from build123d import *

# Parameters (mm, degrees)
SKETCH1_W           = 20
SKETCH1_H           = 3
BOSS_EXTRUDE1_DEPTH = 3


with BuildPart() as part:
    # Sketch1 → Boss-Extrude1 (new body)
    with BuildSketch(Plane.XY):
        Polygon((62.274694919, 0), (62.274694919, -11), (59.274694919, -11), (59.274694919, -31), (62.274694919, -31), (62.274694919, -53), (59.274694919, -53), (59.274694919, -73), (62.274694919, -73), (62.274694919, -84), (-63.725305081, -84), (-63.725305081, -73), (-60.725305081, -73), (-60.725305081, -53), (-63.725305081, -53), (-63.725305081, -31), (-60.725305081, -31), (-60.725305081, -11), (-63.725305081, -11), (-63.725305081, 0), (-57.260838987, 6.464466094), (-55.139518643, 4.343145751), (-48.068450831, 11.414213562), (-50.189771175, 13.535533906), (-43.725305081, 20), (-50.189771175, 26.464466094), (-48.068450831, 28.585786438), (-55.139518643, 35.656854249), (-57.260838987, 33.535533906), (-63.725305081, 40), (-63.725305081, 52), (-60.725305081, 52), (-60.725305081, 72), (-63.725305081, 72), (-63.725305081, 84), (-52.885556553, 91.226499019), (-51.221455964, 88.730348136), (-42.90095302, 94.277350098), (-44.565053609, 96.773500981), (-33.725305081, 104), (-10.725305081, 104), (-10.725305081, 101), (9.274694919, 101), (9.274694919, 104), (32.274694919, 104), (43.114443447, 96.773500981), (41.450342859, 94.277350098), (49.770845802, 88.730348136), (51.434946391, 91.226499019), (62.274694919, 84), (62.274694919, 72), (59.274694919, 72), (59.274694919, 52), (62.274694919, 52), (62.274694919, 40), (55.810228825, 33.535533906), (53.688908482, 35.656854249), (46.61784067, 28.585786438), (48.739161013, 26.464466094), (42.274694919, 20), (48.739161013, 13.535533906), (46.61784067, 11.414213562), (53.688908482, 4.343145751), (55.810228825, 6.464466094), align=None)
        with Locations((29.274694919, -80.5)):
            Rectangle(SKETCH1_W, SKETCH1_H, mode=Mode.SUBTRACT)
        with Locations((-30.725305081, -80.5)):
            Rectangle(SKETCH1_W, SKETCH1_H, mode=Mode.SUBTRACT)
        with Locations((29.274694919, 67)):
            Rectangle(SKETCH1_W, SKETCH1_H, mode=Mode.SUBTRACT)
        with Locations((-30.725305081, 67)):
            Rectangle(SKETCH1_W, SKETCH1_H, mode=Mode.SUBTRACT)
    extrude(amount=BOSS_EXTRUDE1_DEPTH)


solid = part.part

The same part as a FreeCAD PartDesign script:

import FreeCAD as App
import Part
import Sketcher
Q = App.Units.Quantity

doc = App.newDocument("Part")
body = doc.addObject("PartDesign::Body", "Body")

# Sketch on XY plane
sketch1 = body.newObject("Sketcher::SketchObject", "Sketch")
sketch1.AttachmentSupport = (doc.getObject("XY_Plane"), [""])
sketch1.MapMode = "FlatFace"
sketch1.addGeometry([
    Part.LineSegment(App.Vector(62.3, -11, 0), App.Vector(62.3, 0, 0)),  # 0
    Part.LineSegment(App.Vector(62.3, 0, 0), App.Vector(55.8, 6.5, 0)),  # 1
    Part.LineSegment(App.Vector(55.8, 6.5, 0), App.Vector(53.7, 4.3, 0)),  # 2
    Part.LineSegment(App.Vector(53.7, 4.3, 0), App.Vector(46.6, 11.4, 0)),  # 3
    Part.LineSegment(App.Vector(46.6, 11.4, 0), App.Vector(48.7, 13.5, 0)),  # 4
    Part.LineSegment(App.Vector(48.7, 13.5, 0), App.Vector(42.3, 20, 0)),  # 5
    Part.LineSegment(App.Vector(42.3, 20, 0), App.Vector(48.7, 26.5, 0)),  # 6
    Part.LineSegment(App.Vector(48.7, 26.5, 0), App.Vector(46.6, 28.6, 0)),  # 7
    Part.LineSegment(App.Vector(46.6, 28.6, 0), App.Vector(53.7, 35.7, 0)),  # 8
    Part.LineSegment(App.Vector(53.7, 35.7, 0), App.Vector(55.8, 33.5, 0)),  # 9
    Part.LineSegment(App.Vector(55.8, 33.5, 0), App.Vector(62.3, 40, 0)),  # 10
    Part.LineSegment(App.Vector(62.3, 40, 0), App.Vector(62.3, 52, 0)),  # 11
    Part.LineSegment(App.Vector(62.3, 52, 0), App.Vector(59.3, 52, 0)),  # 12
    Part.LineSegment(App.Vector(59.3, 52, 0), App.Vector(59.3, 72, 0)),  # 13
    Part.LineSegment(App.Vector(59.3, 72, 0), App.Vector(62.3, 72, 0)),  # 14
    Part.LineSegment(App.Vector(62.3, 72, 0), App.Vector(62.3, 84, 0)),  # 15
    Part.LineSegment(App.Vector(62.3, 84, 0), App.Vector(51.4, 91.2, 0)),  # 16
    Part.LineSegment(App.Vector(51.4, 91.2, 0), App.Vector(49.8, 88.7, 0)),  # 17
    Part.LineSegment(App.Vector(49.8, 88.7, 0), App.Vector(41.5, 94.3, 0)),  # 18
    Part.LineSegment(App.Vector(41.5, 94.3, 0), App.Vector(43.1, 96.8, 0)),  # 19
    Part.LineSegment(App.Vector(43.1, 96.8, 0), App.Vector(32.3, 104, 0)),  # 20
    Part.LineSegment(App.Vector(32.3, 104, 0), App.Vector(9.3, 104, 0)),  # 21
    Part.LineSegment(App.Vector(9.3, 104, 0), App.Vector(9.3, 101, 0)),  # 22
    Part.LineSegment(App.Vector(9.3, 101, 0), App.Vector(-10.7, 101, 0)),  # 23
    Part.LineSegment(App.Vector(-10.7, 101, 0), App.Vector(-10.7, 104, 0)),  # 24
    Part.LineSegment(App.Vector(-10.7, 104, 0), App.Vector(-33.7, 104, 0)),  # 25
    Part.LineSegment(App.Vector(-33.7, 104, 0), App.Vector(-44.6, 96.8, 0)),  # 26
    Part.LineSegment(App.Vector(-44.6, 96.8, 0), App.Vector(-42.9, 94.3, 0)),  # 27
    Part.LineSegment(App.Vector(-42.9, 94.3, 0), App.Vector(-51.2, 88.7, 0)),  # 28
    Part.LineSegment(App.Vector(-51.2, 88.7, 0), App.Vector(-52.9, 91.2, 0)),  # 29
    Part.LineSegment(App.Vector(-52.9, 91.2, 0), App.Vector(-63.7, 84, 0)),  # 30
    Part.LineSegment(App.Vector(-63.7, 84, 0), App.Vector(-63.7, 72, 0)),  # 31
    Part.LineSegment(App.Vector(-63.7, 72, 0), App.Vector(-60.7, 72, 0)),  # 32
    Part.LineSegment(App.Vector(-60.7, 72, 0), App.Vector(-60.7, 52, 0)),  # 33
    Part.LineSegment(App.Vector(-60.7, 52, 0), App.Vector(-63.7, 52, 0)),  # 34
    Part.LineSegment(App.Vector(-63.7, 52, 0), App.Vector(-63.7, 40, 0)),  # 35
    Part.LineSegment(App.Vector(-63.7, 40, 0), App.Vector(-57.3, 33.5, 0)),  # 36
    Part.LineSegment(App.Vector(-57.3, 33.5, 0), App.Vector(-55.1, 35.7, 0)),  # 37
    Part.LineSegment(App.Vector(-55.1, 35.7, 0), App.Vector(-48.1, 28.6, 0)),  # 38
    Part.LineSegment(App.Vector(-48.1, 28.6, 0), App.Vector(-50.2, 26.5, 0)),  # 39
    Part.LineSegment(App.Vector(-50.2, 26.5, 0), App.Vector(-43.7, 20, 0)),  # 40
    Part.LineSegment(App.Vector(-43.7, 20, 0), App.Vector(-50.2, 13.5, 0)),  # 41
    Part.LineSegment(App.Vector(-50.2, 13.5, 0), App.Vector(-48.1, 11.4, 0)),  # 42
    Part.LineSegment(App.Vector(-48.1, 11.4, 0), App.Vector(-55.1, 4.3, 0)),  # 43
    Part.LineSegment(App.Vector(-55.1, 4.3, 0), App.Vector(-57.3, 6.5, 0)),  # 44
    Part.LineSegment(App.Vector(-57.3, 6.5, 0), App.Vector(-63.7, 0, 0)),  # 45
    Part.LineSegment(App.Vector(-63.7, 0, 0), App.Vector(-63.7, -11, 0)),  # 46
    Part.LineSegment(App.Vector(-63.7, -11, 0), App.Vector(-60.7, -11, 0)),  # 47
    Part.LineSegment(App.Vector(-60.7, -11, 0), App.Vector(-60.7, -31, 0)),  # 48
    Part.LineSegment(App.Vector(-60.7, -31, 0), App.Vector(-63.7, -31, 0)),  # 49
    Part.LineSegment(App.Vector(-63.7, -31, 0), App.Vector(-63.7, -53, 0)),  # 50
    Part.LineSegment(App.Vector(-63.7, -53, 0), App.Vector(-60.7, -53, 0)),  # 51
    Part.LineSegment(App.Vector(-60.7, -53, 0), App.Vector(-60.7, -73, 0)),  # 52
    Part.LineSegment(App.Vector(-60.7, -73, 0), App.Vector(-63.7, -73, 0)),  # 53
    Part.LineSegment(App.Vector(-63.7, -73, 0), App.Vector(-63.7, -84, 0)),  # 54
    Part.LineSegment(App.Vector(-63.7, -84, 0), App.Vector(62.3, -84, 0)),  # 55
    Part.LineSegment(App.Vector(62.3, -84, 0), App.Vector(62.3, -73, 0)),  # 56
    Part.LineSegment(App.Vector(62.3, -73, 0), App.Vector(59.3, -73, 0)),  # 57
    Part.LineSegment(App.Vector(59.3, -73, 0), App.Vector(59.3, -53, 0)),  # 58
    Part.LineSegment(App.Vector(59.3, -53, 0), App.Vector(62.3, -53, 0)),  # 59
    Part.LineSegment(App.Vector(62.3, -53, 0), App.Vector(62.3, -31, 0)),  # 60
    Part.LineSegment(App.Vector(62.3, -31, 0), App.Vector(59.3, -31, 0)),  # 61
    Part.LineSegment(App.Vector(59.3, -31, 0), App.Vector(59.3, -11, 0)),  # 62
    Part.LineSegment(App.Vector(59.3, -11, 0), App.Vector(62.3, -11, 0)),  # 63
    Part.LineSegment(App.Vector(19.3, -82, 0), App.Vector(19.3, -79, 0)),  # 64
    Part.LineSegment(App.Vector(19.3, -79, 0), App.Vector(39.3, -79, 0)),  # 65
    Part.LineSegment(App.Vector(39.3, -79, 0), App.Vector(39.3, -82, 0)),  # 66
    Part.LineSegment(App.Vector(39.3, -82, 0), App.Vector(19.3, -82, 0)),  # 67
    Part.LineSegment(App.Vector(-40.7, -82, 0), App.Vector(-40.7, -79, 0)),  # 68
    Part.LineSegment(App.Vector(-40.7, -79, 0), App.Vector(-20.7, -79, 0)),  # 69
    Part.LineSegment(App.Vector(-20.7, -79, 0), App.Vector(-20.7, -82, 0)),  # 70
    Part.LineSegment(App.Vector(-20.7, -82, 0), App.Vector(-40.7, -82, 0)),  # 71
    Part.LineSegment(App.Vector(19.3, 65.5, 0), App.Vector(19.3, 68.5, 0)),  # 72
    Part.LineSegment(App.Vector(19.3, 68.5, 0), App.Vector(39.3, 68.5, 0)),  # 73
    Part.LineSegment(App.Vector(39.3, 68.5, 0), App.Vector(39.3, 65.5, 0)),  # 74
    Part.LineSegment(App.Vector(39.3, 65.5, 0), App.Vector(19.3, 65.5, 0)),  # 75
    Part.LineSegment(App.Vector(-40.7, 65.5, 0), App.Vector(-40.7, 68.5, 0)),  # 76
    Part.LineSegment(App.Vector(-40.7, 68.5, 0), App.Vector(-20.7, 68.5, 0)),  # 77
    Part.LineSegment(App.Vector(-20.7, 68.5, 0), App.Vector(-20.7, 65.5, 0)),  # 78
    Part.LineSegment(App.Vector(-20.7, 65.5, 0), App.Vector(-40.7, 65.5, 0)),  # 79
], False)
sketch1.addConstraint([
    Sketcher.Constraint("Coincident", 0, 2, 1, 1),
    Sketcher.Constraint("Coincident", 1, 2, 2, 1),
    Sketcher.Constraint("Coincident", 2, 2, 3, 1),
    Sketcher.Constraint("Coincident", 3, 2, 4, 1),
    Sketcher.Constraint("Coincident", 4, 2, 5, 1),
    Sketcher.Constraint("Coincident", 5, 2, 6, 1),
    Sketcher.Constraint("Coincident", 6, 2, 7, 1),
    Sketcher.Constraint("Coincident", 7, 2, 8, 1),
    Sketcher.Constraint("Coincident", 8, 2, 9, 1),
    Sketcher.Constraint("Coincident", 9, 2, 10, 1),
    Sketcher.Constraint("Coincident", 10, 2, 11, 1),
    Sketcher.Constraint("Coincident", 11, 2, 12, 1),
    Sketcher.Constraint("Coincident", 12, 2, 13, 1),
    Sketcher.Constraint("Coincident", 13, 2, 14, 1),
    Sketcher.Constraint("Coincident", 14, 2, 15, 1),
    Sketcher.Constraint("Coincident", 15, 2, 16, 1),
    Sketcher.Constraint("Coincident", 16, 2, 17, 1),
    Sketcher.Constraint("Coincident", 17, 2, 18, 1),
    Sketcher.Constraint("Coincident", 18, 2, 19, 1),
    Sketcher.Constraint("Coincident", 19, 2, 20, 1),
    Sketcher.Constraint("Coincident", 20, 2, 21, 1),
    Sketcher.Constraint("Coincident", 21, 2, 22, 1),
    Sketcher.Constraint("Coincident", 22, 2, 23, 1),
    Sketcher.Constraint("Coincident", 23, 2, 24, 1),
    Sketcher.Constraint("Coincident", 24, 2, 25, 1),
    Sketcher.Constraint("Coincident", 25, 2, 26, 1),
    Sketcher.Constraint("Coincident", 26, 2, 27, 1),
    Sketcher.Constraint("Coincident", 27, 2, 28, 1),
    Sketcher.Constraint("Coincident", 28, 2, 29, 1),
    Sketcher.Constraint("Coincident", 29, 2, 30, 1),
    Sketcher.Constraint("Coincident", 30, 2, 31, 1),
    Sketcher.Constraint("Coincident", 31, 2, 32, 1),
    Sketcher.Constraint("Coincident", 32, 2, 33, 1),
    Sketcher.Constraint("Coincident", 33, 2, 34, 1),
    Sketcher.Constraint("Coincident", 34, 2, 35, 1),
    Sketcher.Constraint("Coincident", 35, 2, 36, 1),
    Sketcher.Constraint("Coincident", 36, 2, 37, 1),
    Sketcher.Constraint("Coincident", 37, 2, 38, 1),
    Sketcher.Constraint("Coincident", 38, 2, 39, 1),
    Sketcher.Constraint("Coincident", 39, 2, 40, 1),
    Sketcher.Constraint("Coincident", 40, 2, 41, 1),
    Sketcher.Constraint("Coincident", 41, 2, 42, 1),
    Sketcher.Constraint("Coincident", 42, 2, 43, 1),
    Sketcher.Constraint("Coincident", 43, 2, 44, 1),
    Sketcher.Constraint("Coincident", 44, 2, 45, 1),
    Sketcher.Constraint("Coincident", 45, 2, 46, 1),
    Sketcher.Constraint("Coincident", 46, 2, 47, 1),
    Sketcher.Constraint("Coincident", 47, 2, 48, 1),
    Sketcher.Constraint("Coincident", 48, 2, 49, 1),
    Sketcher.Constraint("Coincident", 49, 2, 50, 1),
    Sketcher.Constraint("Coincident", 50, 2, 51, 1),
    Sketcher.Constraint("Coincident", 51, 2, 52, 1),
    Sketcher.Constraint("Coincident", 52, 2, 53, 1),
    Sketcher.Constraint("Coincident", 53, 2, 54, 1),
    Sketcher.Constraint("Coincident", 54, 2, 55, 1),
    Sketcher.Constraint("Coincident", 55, 2, 56, 1),
    Sketcher.Constraint("Coincident", 56, 2, 57, 1),
    Sketcher.Constraint("Coincident", 57, 2, 58, 1),
    Sketcher.Constraint("Coincident", 58, 2, 59, 1),
    Sketcher.Constraint("Coincident", 59, 2, 60, 1),
    Sketcher.Constraint("Coincident", 60, 2, 61, 1),
    Sketcher.Constraint("Coincident", 61, 2, 62, 1),
    Sketcher.Constraint("Coincident", 62, 2, 63, 1),
    Sketcher.Constraint("Coincident", 63, 2, 0, 1),
    Sketcher.Constraint("Coincident", 64, 2, 65, 1),
    Sketcher.Constraint("Coincident", 65, 2, 66, 1),
    Sketcher.Constraint("Coincident", 66, 2, 67, 1),
    Sketcher.Constraint("Coincident", 67, 2, 64, 1),
    Sketcher.Constraint("Coincident", 68, 2, 69, 1),
    Sketcher.Constraint("Coincident", 69, 2, 70, 1),
    Sketcher.Constraint("Coincident", 70, 2, 71, 1),
    Sketcher.Constraint("Coincident", 71, 2, 68, 1),
    Sketcher.Constraint("Coincident", 72, 2, 73, 1),
    Sketcher.Constraint("Coincident", 73, 2, 74, 1),
    Sketcher.Constraint("Coincident", 74, 2, 75, 1),
    Sketcher.Constraint("Coincident", 75, 2, 72, 1),
    Sketcher.Constraint("Coincident", 76, 2, 77, 1),
    Sketcher.Constraint("Coincident", 77, 2, 78, 1),
    Sketcher.Constraint("Coincident", 78, 2, 79, 1),
    Sketcher.Constraint("Coincident", 79, 2, 76, 1),
    Sketcher.Constraint("Vertical", 0),
    Sketcher.Constraint("Vertical", 11),
    Sketcher.Constraint("Horizontal", 12),
    Sketcher.Constraint("Vertical", 13),
    Sketcher.Constraint("Horizontal", 14),
    Sketcher.Constraint("Vertical", 15),
    Sketcher.Constraint("Horizontal", 21),
    Sketcher.Constraint("Vertical", 22),
    Sketcher.Constraint("Horizontal", 23),
    Sketcher.Constraint("Vertical", 24),
    Sketcher.Constraint("Horizontal", 25),
    Sketcher.Constraint("Vertical", 31),
    Sketcher.Constraint("Horizontal", 32),
    Sketcher.Constraint("Vertical", 33),
    Sketcher.Constraint("Horizontal", 34),
    Sketcher.Constraint("Vertical", 35),
    Sketcher.Constraint("Vertical", 46),
    Sketcher.Constraint("Horizontal", 47),
    Sketcher.Constraint("Vertical", 48),
    Sketcher.Constraint("Horizontal", 49),
    Sketcher.Constraint("Vertical", 50),
    Sketcher.Constraint("Horizontal", 51),
    Sketcher.Constraint("Vertical", 52),
    Sketcher.Constraint("Horizontal", 53),
    Sketcher.Constraint("Vertical", 54),
    Sketcher.Constraint("Horizontal", 55),
    Sketcher.Constraint("Vertical", 56),
    Sketcher.Constraint("Horizontal", 57),
    Sketcher.Constraint("Vertical", 58),
    Sketcher.Constraint("Horizontal", 59),
    Sketcher.Constraint("Vertical", 60),
    Sketcher.Constraint("Horizontal", 61),
    Sketcher.Constraint("Vertical", 62),
    Sketcher.Constraint("Horizontal", 63),
    Sketcher.Constraint("Vertical", 64),
    Sketcher.Constraint("Horizontal", 65),
    Sketcher.Constraint("Vertical", 66),
    Sketcher.Constraint("Horizontal", 67),
    Sketcher.Constraint("Vertical", 68),
    Sketcher.Constraint("Horizontal", 69),
    Sketcher.Constraint("Vertical", 70),
    Sketcher.Constraint("Horizontal", 71),
    Sketcher.Constraint("Vertical", 72),
    Sketcher.Constraint("Horizontal", 73),
    Sketcher.Constraint("Vertical", 74),
    Sketcher.Constraint("Horizontal", 75),
    Sketcher.Constraint("Vertical", 76),
    Sketcher.Constraint("Horizontal", 77),
    Sketcher.Constraint("Vertical", 78),
    Sketcher.Constraint("Horizontal", 79),
    Sketcher.Constraint("Symmetric", 30, 2, 54, 2, -1),
    Sketcher.Constraint("Symmetric", 15, 2, 55, 2, -1),
    Sketcher.Constraint("PointOnObject", 0, 2, -1),
    Sketcher.Constraint("PointOnObject", 45, 2, -1),
    Sketcher.Constraint("Perpendicular", 1, 2),
    Sketcher.Constraint("Perpendicular", 2, 3),
    Sketcher.Constraint("Perpendicular", 3, 4),
    Sketcher.Constraint("Perpendicular", 4, 5),
    Sketcher.Constraint("Perpendicular", 5, 6),
    Sketcher.Constraint("Perpendicular", 6, 7),
    Sketcher.Constraint("Perpendicular", 7, 8),
    Sketcher.Constraint("Perpendicular", 8, 9),
    Sketcher.Constraint("Perpendicular", 9, 10),
    Sketcher.Constraint("Perpendicular", 16, 17),
    Sketcher.Constraint("Perpendicular", 17, 18),
    Sketcher.Constraint("Perpendicular", 18, 19),
    Sketcher.Constraint("Perpendicular", 19, 20),
    Sketcher.Constraint("Perpendicular", 26, 27),
    Sketcher.Constraint("Perpendicular", 27, 28),
    Sketcher.Constraint("Perpendicular", 28, 29),
    Sketcher.Constraint("Perpendicular", 29, 30),
    Sketcher.Constraint("Perpendicular", 10, 36),
    Sketcher.Constraint("Perpendicular", 36, 37),
    Sketcher.Constraint("Perpendicular", 37, 38),
    Sketcher.Constraint("Perpendicular", 38, 39),
    Sketcher.Constraint("Perpendicular", 39, 40),
    Sketcher.Constraint("Perpendicular", 40, 41),
    Sketcher.Constraint("Perpendicular", 41, 42),
    Sketcher.Constraint("Perpendicular", 42, 43),
    Sketcher.Constraint("Perpendicular", 43, 44),
    Sketcher.Constraint("Perpendicular", 44, 45),
    Sketcher.Constraint("Horizontal", 21, 2, 24, 2),
    Sketcher.Constraint("Horizontal", 19, 2, 26, 2),
    Sketcher.Constraint("Horizontal", 18, 2, 27, 2),
    Sketcher.Constraint("Horizontal", 17, 2, 28, 2),
    Sketcher.Constraint("Horizontal", 16, 2, 29, 2),
    Sketcher.Constraint("Horizontal", 14, 2, 31, 2),
    Sketcher.Constraint("Horizontal", 12, 2, 33, 2),
    Sketcher.Constraint("Horizontal", 10, 2, 35, 2),
    Sketcher.Constraint("Horizontal", 9, 2, 36, 2),
    Sketcher.Constraint("Horizontal", 8, 2, 37, 2),
    Sketcher.Constraint("Horizontal", 7, 2, 38, 2),
    Sketcher.Constraint("Horizontal", 6, 2, 39, 2),
    Sketcher.Constraint("Horizontal", 5, 2, 40, 2),
    Sketcher.Constraint("Horizontal", 4, 2, 41, 2),
    Sketcher.Constraint("Horizontal", 3, 2, 42, 2),
    Sketcher.Constraint("Horizontal", 2, 2, 43, 2),
    Sketcher.Constraint("Horizontal", 1, 2, 44, 2),
    Sketcher.Constraint("Horizontal", 53, 2, 56, 2),
    Sketcher.Constraint("Horizontal", 51, 2, 58, 2),
    Sketcher.Constraint("Horizontal", 49, 2, 60, 2),
    Sketcher.Constraint("Horizontal", 47, 2, 62, 2),
    Sketcher.Constraint("Horizontal", 65, 2, 68, 2),
    Sketcher.Constraint("Horizontal", 67, 2, 70, 2),
    Sketcher.Constraint("Horizontal", 73, 2, 76, 2),
    Sketcher.Constraint("Horizontal", 75, 2, 78, 2),
    Sketcher.Constraint("Vertical", 4, 2, 6, 2),
    Sketcher.Constraint("Vertical", 3, 2, 7, 2),
    Sketcher.Constraint("Vertical", 2, 2, 8, 2),
    Sketcher.Constraint("Vertical", 1, 2, 9, 2),
    Sketcher.Constraint("Vertical", 0, 2, 10, 2),
    Sketcher.Constraint("Vertical", 11, 2, 14, 2),
    Sketcher.Constraint("Vertical", 31, 2, 34, 2),
    Sketcher.Constraint("Vertical", 39, 2, 41, 2),
    Sketcher.Constraint("Vertical", 33, 2, 47, 2),
    Sketcher.Constraint("Vertical", 46, 2, 49, 2),
    Sketcher.Constraint("Vertical", 48, 2, 51, 2),
    Sketcher.Constraint("Vertical", 13, 2, 57, 2),
    Sketcher.Constraint("Vertical", 56, 2, 59, 2),
    Sketcher.Constraint("Vertical", 58, 2, 61, 2),
    Sketcher.Constraint("Vertical", 67, 2, 72, 2),
    Sketcher.Constraint("Vertical", 66, 2, 73, 2),
    Sketcher.Constraint("Vertical", 71, 2, 76, 2),
    Sketcher.Constraint("Vertical", 70, 2, 77, 2),
    Sketcher.Constraint("Equal", 21, 25),
    Sketcher.Constraint("Equal", 14, 32),
    Sketcher.Constraint("Equal", 23, 65),
    Sketcher.Constraint("Equal", 67, 69),
    Sketcher.Constraint("Equal", 79, 13),
    Sketcher.Constraint("Equal", 11, 15),
    Sketcher.Constraint("Equal", 63, 22),
    Sketcher.Constraint("Equal", 33, 48),
    Sketcher.Constraint("Equal", 48, 52),
    Sketcher.Constraint("Equal", 46, 54),
    Sketcher.Constraint("Equal", 24, 64),
    Sketcher.Constraint("Equal", 70, 72),
    Sketcher.Constraint("Equal", 2, 4),
    Sketcher.Constraint("Equal", 1, 5),
    Sketcher.Constraint("Equal", 9, 17),
    Sketcher.Constraint("Equal", 8, 18),
    Sketcher.Constraint("Equal", 17, 19),
    Sketcher.Constraint("Equal", 16, 20),
    Sketcher.Constraint("Equal", 20, 26),
    Sketcher.Constraint("DistanceX", 12, 2, 12, 1, Q("3 mm")),
    Sketcher.Constraint("DistanceX", 21, 2, 21, 1, Q("23 mm")),
    Sketcher.Constraint("DistanceX", 23, 2, 23, 1, Q("20 mm")),
    Sketcher.Constraint("DistanceX", 55, 1, 55, 2, Q("126 mm")),
    Sketcher.Constraint("DistanceY", 0, 1, 0, 2, Q("11 mm")),
    Sketcher.Constraint("DistanceY", 11, 1, 11, 2, Q("12 mm")),
    Sketcher.Constraint("DistanceY", 50, 2, 50, 1, Q("22 mm")),
    Sketcher.Constraint("Distance", 2, Q("3 mm")),
    Sketcher.Constraint("Distance", 3, Q("10 mm")),
    Sketcher.Constraint("DistanceY", -1, 1, 20, 2, Q("104 mm")),
    Sketcher.Constraint("DistanceY", 64, 2, -1, 1, Q("79 mm")),
    Sketcher.Constraint("DistanceY", -1, 1, 72, 2, Q("68.5 mm")),
    Sketcher.Constraint("DistanceX", -1, 1, 1, 2, Q("55.810229 mm")),
    Sketcher.Constraint("DistanceX", -1, 1, 64, 2, Q("19.274695 mm")),
    Sketcher.Constraint("DistanceX", 68, 2, -1, 1, Q("40.725305 mm")),
])
pad1 = body.newObject("PartDesign::Pad", "Pad")
pad1.Profile = sketch1
pad1.Length = 3

doc.recompute()
